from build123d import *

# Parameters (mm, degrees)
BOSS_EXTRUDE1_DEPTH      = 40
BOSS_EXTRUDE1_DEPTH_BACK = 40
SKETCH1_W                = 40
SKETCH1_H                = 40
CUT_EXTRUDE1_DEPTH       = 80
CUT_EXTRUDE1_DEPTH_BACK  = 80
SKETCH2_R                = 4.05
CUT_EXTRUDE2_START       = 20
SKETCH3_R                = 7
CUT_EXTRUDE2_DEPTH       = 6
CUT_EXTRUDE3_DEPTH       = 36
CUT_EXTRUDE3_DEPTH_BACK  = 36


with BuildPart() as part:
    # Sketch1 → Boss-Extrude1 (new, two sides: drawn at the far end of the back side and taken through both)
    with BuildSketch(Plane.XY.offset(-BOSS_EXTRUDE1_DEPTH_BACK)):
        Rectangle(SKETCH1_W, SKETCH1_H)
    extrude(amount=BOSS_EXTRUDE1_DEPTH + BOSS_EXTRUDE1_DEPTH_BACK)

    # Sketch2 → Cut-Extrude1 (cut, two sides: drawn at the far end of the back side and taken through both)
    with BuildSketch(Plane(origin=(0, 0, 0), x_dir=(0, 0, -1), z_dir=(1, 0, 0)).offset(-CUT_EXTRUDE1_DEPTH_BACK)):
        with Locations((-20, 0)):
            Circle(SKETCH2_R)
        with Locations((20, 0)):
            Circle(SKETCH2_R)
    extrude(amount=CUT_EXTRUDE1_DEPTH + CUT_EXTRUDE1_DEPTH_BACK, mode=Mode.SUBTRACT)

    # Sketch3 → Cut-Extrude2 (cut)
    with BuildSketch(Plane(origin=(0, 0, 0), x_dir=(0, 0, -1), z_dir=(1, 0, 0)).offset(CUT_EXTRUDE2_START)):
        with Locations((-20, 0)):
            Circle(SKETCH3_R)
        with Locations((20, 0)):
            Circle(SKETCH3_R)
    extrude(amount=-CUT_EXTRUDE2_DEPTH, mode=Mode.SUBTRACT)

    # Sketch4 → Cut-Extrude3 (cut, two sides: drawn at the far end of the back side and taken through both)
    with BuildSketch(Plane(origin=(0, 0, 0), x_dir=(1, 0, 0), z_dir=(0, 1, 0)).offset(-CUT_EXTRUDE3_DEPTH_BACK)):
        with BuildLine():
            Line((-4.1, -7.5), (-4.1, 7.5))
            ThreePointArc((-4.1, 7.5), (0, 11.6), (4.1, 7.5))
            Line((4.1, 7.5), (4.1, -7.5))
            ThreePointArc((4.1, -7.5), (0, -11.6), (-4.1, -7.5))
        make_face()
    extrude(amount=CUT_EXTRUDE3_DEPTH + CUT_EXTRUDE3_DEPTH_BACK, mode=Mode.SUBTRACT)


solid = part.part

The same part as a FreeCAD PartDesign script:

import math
import FreeCAD as App
import Part
import Sketcher
Q = App.Units.Quantity


def add_polygon(sketch, points):
    """Adds a closed chain of lines whose ends are joined by coincident constraints."""
    first, n = sketch.GeometryCount, len(points)
    for a, b in zip(points, points[1:] + points[:1]):
        sketch.addGeometry(Part.LineSegment(App.Vector(*a, 0), App.Vector(*b, 0)), False)
    for i in range(n):
        sketch.addConstraint(Sketcher.Constraint("Coincident", first + i, 2, first + (i + 1) % n, 1))

doc = App.newDocument("Part")
params = doc.addObject("Spreadsheet::Sheet", "Params")
for row, (alias, value) in enumerate([
    ("sketch1_width", "40 mm"),
    ("pad1_length", "40 mm"),
    ("pad1_length2", "40 mm"),
    ("sketch2_diameter", "8.1 mm"),
    ("sketch3_diameter", "14 mm"),
    ("pocket2_length", "6 mm"),
    ("sketch4_radius", "4.1 mm"),
    ("sketch4_height", "15 mm"),
], start=1):
    params.set(f"A{row}", alias)
    params.set(f"B{row}", "=" + value)
    params.setAlias(f"B{row}", alias)

body = doc.addObject("PartDesign::Body", "Body")

# Sketch on XY plane
sketch1 = body.newObject("Sketcher::SketchObject", "Sketch")
sketch1.AttachmentSupport = (doc.getObject("XY_Plane"), [""])
sketch1.MapMode = "FlatFace"
add_polygon(sketch1, [(-20, 20), (-20, -20), (20, -20), (20, 20)])  # lines 0-3
sketch1.addConstraint([
    Sketcher.Constraint("Vertical", 0),
    Sketcher.Constraint("Horizontal", 1),
    Sketcher.Constraint("Vertical", 2),
    Sketcher.Constraint("Horizontal", 3),
    Sketcher.Constraint("Symmetric", 0, 2, 2, 2, -1, 1),
    Sketcher.Constraint("Equal", 3, 0),
    Sketcher.Constraint("DistanceX", 1, 1, 1, 2, Q("40 mm")),
])
sketch1.setExpression("Constraints[10]", "Params.sketch1_width")
pad1 = body.newObject("PartDesign::Pad", "Pad")
pad1.Profile = sketch1
pad1.Type = "TwoLengths"
pad1.setExpression("Length", "Params.pad1_length")
pad1.setExpression("Length2", "Params.pad1_length2")

# Sketch on YZ plane
sketch2 = body.newObject("Sketcher::SketchObject", "Sketch001")
sketch2.AttachmentSupport = (doc.getObject("YZ_Plane"), [""])
sketch2.MapMode = "FlatFace"
sketch2.addGeometry([
    Part.Circle(App.Vector(0, 20, 0), App.Vector(0, 0, 1), 4.05),
    Part.Circle(App.Vector(0, -20, 0), App.Vector(0, 0, 1), 4.05),
], False)
sketch2.addConstraint([
    Sketcher.Constraint("Equal", 0, 1),
    Sketcher.Constraint("Symmetric", 0, 3, 1, 3, -1, 1),
    Sketcher.Constraint("PointOnObject", 0, 3, -2),
    Sketcher.Constraint("Diameter", 0, Q("8.1 mm")),
    Sketcher.Constraint("DistanceY", -1, 1, 0, 3, Q("20 mm")),
])
sketch2.setExpression("Constraints[3]", "Params.sketch2_diameter")
pocket1 = body.newObject("PartDesign::Pocket", "Pocket")
pocket1.Profile = sketch2
pocket1.Type = "ThroughAll"
pocket1.Midplane = True

# Sketch on YZ plane
sketch3 = body.newObject("Sketcher::SketchObject", "Sketch002")
sketch3.AttachmentSupport = (doc.getObject("YZ_Plane"), [""])
sketch3.MapMode = "FlatFace"
sketch3.AttachmentOffset = App.Placement(App.Vector(0, 0, 20), App.Rotation())
sketch3.addGeometry([
    Part.Circle(App.Vector(0, 20, 0), App.Vector(0, 0, 1), 7),
    Part.Circle(App.Vector(0, -20, 0), App.Vector(0, 0, 1), 7),
], False)
sketch3.addConstraint([
    Sketcher.Constraint("Equal", 0, 1),
    Sketcher.Constraint("Symmetric", 0, 3, 1, 3, -1, 1),
    Sketcher.Constraint("PointOnObject", 0, 3, -2),
    Sketcher.Constraint("Diameter", 0, Q("14 mm")),
    Sketcher.Constraint("DistanceY", -1, 1, 0, 3, Q("20 mm")),
])
sketch3.setExpression("Constraints[3]", "Params.sketch3_diameter")
pocket2 = body.newObject("PartDesign::Pocket", "Pocket001")
pocket2.Profile = sketch3
pocket2.setExpression("Length", "Params.pocket2_length")

# Sketch on XZ plane
sketch4 = body.newObject("Sketcher::SketchObject", "Sketch003")
sketch4.AttachmentSupport = (doc.getObject("XZ_Plane"), [""])
sketch4.MapMode = "FlatFace"
sketch4.addGeometry([
    Part.LineSegment(App.Vector(-4.1, -7.5, 0), App.Vector(-4.1, 7.5, 0)),
    Part.ArcOfCircle(Part.Circle(App.Vector(0, 7.5, 0), App.Vector(0, 0, 1), 4.1), math.radians(0), math.radians(180)),
    Part.LineSegment(App.Vector(4.1, 7.5, 0), App.Vector(4.1, -7.5, 0)),
    Part.ArcOfCircle(Part.Circle(App.Vector(0, -7.5, 0), App.Vector(0, 0, 1), 4.1), math.radians(180), math.radians(360)),
], False)
sketch4.addConstraint([
    Sketcher.Constraint("Tangent", 0, 2, 1, 2),
    Sketcher.Constraint("Tangent", 1, 1, 2, 1),
    Sketcher.Constraint("Tangent", 2, 2, 3, 2),
    Sketcher.Constraint("Tangent", 3, 1, 0, 1),
    Sketcher.Constraint("Vertical", 0),
    Sketcher.Constraint("Vertical", 2),
    Sketcher.Constraint("Symmetric", 1, 3, 3, 3, -1, 1),
    Sketcher.Constraint("Radius", 1, Q("4.1 mm")),
    Sketcher.Constraint("DistanceY", 0, 1, 0, 2, Q("15 mm")),
])
sketch4.setExpression("Constraints[7]", "Params.sketch4_radius")
sketch4.setExpression("Constraints[8]", "Params.sketch4_height")
pocket3 = body.newObject("PartDesign::Pocket", "Pocket002")
pocket3.Profile = sketch4
pocket3.Type = "ThroughAll"
pocket3.Midplane = True

doc.recompute()
